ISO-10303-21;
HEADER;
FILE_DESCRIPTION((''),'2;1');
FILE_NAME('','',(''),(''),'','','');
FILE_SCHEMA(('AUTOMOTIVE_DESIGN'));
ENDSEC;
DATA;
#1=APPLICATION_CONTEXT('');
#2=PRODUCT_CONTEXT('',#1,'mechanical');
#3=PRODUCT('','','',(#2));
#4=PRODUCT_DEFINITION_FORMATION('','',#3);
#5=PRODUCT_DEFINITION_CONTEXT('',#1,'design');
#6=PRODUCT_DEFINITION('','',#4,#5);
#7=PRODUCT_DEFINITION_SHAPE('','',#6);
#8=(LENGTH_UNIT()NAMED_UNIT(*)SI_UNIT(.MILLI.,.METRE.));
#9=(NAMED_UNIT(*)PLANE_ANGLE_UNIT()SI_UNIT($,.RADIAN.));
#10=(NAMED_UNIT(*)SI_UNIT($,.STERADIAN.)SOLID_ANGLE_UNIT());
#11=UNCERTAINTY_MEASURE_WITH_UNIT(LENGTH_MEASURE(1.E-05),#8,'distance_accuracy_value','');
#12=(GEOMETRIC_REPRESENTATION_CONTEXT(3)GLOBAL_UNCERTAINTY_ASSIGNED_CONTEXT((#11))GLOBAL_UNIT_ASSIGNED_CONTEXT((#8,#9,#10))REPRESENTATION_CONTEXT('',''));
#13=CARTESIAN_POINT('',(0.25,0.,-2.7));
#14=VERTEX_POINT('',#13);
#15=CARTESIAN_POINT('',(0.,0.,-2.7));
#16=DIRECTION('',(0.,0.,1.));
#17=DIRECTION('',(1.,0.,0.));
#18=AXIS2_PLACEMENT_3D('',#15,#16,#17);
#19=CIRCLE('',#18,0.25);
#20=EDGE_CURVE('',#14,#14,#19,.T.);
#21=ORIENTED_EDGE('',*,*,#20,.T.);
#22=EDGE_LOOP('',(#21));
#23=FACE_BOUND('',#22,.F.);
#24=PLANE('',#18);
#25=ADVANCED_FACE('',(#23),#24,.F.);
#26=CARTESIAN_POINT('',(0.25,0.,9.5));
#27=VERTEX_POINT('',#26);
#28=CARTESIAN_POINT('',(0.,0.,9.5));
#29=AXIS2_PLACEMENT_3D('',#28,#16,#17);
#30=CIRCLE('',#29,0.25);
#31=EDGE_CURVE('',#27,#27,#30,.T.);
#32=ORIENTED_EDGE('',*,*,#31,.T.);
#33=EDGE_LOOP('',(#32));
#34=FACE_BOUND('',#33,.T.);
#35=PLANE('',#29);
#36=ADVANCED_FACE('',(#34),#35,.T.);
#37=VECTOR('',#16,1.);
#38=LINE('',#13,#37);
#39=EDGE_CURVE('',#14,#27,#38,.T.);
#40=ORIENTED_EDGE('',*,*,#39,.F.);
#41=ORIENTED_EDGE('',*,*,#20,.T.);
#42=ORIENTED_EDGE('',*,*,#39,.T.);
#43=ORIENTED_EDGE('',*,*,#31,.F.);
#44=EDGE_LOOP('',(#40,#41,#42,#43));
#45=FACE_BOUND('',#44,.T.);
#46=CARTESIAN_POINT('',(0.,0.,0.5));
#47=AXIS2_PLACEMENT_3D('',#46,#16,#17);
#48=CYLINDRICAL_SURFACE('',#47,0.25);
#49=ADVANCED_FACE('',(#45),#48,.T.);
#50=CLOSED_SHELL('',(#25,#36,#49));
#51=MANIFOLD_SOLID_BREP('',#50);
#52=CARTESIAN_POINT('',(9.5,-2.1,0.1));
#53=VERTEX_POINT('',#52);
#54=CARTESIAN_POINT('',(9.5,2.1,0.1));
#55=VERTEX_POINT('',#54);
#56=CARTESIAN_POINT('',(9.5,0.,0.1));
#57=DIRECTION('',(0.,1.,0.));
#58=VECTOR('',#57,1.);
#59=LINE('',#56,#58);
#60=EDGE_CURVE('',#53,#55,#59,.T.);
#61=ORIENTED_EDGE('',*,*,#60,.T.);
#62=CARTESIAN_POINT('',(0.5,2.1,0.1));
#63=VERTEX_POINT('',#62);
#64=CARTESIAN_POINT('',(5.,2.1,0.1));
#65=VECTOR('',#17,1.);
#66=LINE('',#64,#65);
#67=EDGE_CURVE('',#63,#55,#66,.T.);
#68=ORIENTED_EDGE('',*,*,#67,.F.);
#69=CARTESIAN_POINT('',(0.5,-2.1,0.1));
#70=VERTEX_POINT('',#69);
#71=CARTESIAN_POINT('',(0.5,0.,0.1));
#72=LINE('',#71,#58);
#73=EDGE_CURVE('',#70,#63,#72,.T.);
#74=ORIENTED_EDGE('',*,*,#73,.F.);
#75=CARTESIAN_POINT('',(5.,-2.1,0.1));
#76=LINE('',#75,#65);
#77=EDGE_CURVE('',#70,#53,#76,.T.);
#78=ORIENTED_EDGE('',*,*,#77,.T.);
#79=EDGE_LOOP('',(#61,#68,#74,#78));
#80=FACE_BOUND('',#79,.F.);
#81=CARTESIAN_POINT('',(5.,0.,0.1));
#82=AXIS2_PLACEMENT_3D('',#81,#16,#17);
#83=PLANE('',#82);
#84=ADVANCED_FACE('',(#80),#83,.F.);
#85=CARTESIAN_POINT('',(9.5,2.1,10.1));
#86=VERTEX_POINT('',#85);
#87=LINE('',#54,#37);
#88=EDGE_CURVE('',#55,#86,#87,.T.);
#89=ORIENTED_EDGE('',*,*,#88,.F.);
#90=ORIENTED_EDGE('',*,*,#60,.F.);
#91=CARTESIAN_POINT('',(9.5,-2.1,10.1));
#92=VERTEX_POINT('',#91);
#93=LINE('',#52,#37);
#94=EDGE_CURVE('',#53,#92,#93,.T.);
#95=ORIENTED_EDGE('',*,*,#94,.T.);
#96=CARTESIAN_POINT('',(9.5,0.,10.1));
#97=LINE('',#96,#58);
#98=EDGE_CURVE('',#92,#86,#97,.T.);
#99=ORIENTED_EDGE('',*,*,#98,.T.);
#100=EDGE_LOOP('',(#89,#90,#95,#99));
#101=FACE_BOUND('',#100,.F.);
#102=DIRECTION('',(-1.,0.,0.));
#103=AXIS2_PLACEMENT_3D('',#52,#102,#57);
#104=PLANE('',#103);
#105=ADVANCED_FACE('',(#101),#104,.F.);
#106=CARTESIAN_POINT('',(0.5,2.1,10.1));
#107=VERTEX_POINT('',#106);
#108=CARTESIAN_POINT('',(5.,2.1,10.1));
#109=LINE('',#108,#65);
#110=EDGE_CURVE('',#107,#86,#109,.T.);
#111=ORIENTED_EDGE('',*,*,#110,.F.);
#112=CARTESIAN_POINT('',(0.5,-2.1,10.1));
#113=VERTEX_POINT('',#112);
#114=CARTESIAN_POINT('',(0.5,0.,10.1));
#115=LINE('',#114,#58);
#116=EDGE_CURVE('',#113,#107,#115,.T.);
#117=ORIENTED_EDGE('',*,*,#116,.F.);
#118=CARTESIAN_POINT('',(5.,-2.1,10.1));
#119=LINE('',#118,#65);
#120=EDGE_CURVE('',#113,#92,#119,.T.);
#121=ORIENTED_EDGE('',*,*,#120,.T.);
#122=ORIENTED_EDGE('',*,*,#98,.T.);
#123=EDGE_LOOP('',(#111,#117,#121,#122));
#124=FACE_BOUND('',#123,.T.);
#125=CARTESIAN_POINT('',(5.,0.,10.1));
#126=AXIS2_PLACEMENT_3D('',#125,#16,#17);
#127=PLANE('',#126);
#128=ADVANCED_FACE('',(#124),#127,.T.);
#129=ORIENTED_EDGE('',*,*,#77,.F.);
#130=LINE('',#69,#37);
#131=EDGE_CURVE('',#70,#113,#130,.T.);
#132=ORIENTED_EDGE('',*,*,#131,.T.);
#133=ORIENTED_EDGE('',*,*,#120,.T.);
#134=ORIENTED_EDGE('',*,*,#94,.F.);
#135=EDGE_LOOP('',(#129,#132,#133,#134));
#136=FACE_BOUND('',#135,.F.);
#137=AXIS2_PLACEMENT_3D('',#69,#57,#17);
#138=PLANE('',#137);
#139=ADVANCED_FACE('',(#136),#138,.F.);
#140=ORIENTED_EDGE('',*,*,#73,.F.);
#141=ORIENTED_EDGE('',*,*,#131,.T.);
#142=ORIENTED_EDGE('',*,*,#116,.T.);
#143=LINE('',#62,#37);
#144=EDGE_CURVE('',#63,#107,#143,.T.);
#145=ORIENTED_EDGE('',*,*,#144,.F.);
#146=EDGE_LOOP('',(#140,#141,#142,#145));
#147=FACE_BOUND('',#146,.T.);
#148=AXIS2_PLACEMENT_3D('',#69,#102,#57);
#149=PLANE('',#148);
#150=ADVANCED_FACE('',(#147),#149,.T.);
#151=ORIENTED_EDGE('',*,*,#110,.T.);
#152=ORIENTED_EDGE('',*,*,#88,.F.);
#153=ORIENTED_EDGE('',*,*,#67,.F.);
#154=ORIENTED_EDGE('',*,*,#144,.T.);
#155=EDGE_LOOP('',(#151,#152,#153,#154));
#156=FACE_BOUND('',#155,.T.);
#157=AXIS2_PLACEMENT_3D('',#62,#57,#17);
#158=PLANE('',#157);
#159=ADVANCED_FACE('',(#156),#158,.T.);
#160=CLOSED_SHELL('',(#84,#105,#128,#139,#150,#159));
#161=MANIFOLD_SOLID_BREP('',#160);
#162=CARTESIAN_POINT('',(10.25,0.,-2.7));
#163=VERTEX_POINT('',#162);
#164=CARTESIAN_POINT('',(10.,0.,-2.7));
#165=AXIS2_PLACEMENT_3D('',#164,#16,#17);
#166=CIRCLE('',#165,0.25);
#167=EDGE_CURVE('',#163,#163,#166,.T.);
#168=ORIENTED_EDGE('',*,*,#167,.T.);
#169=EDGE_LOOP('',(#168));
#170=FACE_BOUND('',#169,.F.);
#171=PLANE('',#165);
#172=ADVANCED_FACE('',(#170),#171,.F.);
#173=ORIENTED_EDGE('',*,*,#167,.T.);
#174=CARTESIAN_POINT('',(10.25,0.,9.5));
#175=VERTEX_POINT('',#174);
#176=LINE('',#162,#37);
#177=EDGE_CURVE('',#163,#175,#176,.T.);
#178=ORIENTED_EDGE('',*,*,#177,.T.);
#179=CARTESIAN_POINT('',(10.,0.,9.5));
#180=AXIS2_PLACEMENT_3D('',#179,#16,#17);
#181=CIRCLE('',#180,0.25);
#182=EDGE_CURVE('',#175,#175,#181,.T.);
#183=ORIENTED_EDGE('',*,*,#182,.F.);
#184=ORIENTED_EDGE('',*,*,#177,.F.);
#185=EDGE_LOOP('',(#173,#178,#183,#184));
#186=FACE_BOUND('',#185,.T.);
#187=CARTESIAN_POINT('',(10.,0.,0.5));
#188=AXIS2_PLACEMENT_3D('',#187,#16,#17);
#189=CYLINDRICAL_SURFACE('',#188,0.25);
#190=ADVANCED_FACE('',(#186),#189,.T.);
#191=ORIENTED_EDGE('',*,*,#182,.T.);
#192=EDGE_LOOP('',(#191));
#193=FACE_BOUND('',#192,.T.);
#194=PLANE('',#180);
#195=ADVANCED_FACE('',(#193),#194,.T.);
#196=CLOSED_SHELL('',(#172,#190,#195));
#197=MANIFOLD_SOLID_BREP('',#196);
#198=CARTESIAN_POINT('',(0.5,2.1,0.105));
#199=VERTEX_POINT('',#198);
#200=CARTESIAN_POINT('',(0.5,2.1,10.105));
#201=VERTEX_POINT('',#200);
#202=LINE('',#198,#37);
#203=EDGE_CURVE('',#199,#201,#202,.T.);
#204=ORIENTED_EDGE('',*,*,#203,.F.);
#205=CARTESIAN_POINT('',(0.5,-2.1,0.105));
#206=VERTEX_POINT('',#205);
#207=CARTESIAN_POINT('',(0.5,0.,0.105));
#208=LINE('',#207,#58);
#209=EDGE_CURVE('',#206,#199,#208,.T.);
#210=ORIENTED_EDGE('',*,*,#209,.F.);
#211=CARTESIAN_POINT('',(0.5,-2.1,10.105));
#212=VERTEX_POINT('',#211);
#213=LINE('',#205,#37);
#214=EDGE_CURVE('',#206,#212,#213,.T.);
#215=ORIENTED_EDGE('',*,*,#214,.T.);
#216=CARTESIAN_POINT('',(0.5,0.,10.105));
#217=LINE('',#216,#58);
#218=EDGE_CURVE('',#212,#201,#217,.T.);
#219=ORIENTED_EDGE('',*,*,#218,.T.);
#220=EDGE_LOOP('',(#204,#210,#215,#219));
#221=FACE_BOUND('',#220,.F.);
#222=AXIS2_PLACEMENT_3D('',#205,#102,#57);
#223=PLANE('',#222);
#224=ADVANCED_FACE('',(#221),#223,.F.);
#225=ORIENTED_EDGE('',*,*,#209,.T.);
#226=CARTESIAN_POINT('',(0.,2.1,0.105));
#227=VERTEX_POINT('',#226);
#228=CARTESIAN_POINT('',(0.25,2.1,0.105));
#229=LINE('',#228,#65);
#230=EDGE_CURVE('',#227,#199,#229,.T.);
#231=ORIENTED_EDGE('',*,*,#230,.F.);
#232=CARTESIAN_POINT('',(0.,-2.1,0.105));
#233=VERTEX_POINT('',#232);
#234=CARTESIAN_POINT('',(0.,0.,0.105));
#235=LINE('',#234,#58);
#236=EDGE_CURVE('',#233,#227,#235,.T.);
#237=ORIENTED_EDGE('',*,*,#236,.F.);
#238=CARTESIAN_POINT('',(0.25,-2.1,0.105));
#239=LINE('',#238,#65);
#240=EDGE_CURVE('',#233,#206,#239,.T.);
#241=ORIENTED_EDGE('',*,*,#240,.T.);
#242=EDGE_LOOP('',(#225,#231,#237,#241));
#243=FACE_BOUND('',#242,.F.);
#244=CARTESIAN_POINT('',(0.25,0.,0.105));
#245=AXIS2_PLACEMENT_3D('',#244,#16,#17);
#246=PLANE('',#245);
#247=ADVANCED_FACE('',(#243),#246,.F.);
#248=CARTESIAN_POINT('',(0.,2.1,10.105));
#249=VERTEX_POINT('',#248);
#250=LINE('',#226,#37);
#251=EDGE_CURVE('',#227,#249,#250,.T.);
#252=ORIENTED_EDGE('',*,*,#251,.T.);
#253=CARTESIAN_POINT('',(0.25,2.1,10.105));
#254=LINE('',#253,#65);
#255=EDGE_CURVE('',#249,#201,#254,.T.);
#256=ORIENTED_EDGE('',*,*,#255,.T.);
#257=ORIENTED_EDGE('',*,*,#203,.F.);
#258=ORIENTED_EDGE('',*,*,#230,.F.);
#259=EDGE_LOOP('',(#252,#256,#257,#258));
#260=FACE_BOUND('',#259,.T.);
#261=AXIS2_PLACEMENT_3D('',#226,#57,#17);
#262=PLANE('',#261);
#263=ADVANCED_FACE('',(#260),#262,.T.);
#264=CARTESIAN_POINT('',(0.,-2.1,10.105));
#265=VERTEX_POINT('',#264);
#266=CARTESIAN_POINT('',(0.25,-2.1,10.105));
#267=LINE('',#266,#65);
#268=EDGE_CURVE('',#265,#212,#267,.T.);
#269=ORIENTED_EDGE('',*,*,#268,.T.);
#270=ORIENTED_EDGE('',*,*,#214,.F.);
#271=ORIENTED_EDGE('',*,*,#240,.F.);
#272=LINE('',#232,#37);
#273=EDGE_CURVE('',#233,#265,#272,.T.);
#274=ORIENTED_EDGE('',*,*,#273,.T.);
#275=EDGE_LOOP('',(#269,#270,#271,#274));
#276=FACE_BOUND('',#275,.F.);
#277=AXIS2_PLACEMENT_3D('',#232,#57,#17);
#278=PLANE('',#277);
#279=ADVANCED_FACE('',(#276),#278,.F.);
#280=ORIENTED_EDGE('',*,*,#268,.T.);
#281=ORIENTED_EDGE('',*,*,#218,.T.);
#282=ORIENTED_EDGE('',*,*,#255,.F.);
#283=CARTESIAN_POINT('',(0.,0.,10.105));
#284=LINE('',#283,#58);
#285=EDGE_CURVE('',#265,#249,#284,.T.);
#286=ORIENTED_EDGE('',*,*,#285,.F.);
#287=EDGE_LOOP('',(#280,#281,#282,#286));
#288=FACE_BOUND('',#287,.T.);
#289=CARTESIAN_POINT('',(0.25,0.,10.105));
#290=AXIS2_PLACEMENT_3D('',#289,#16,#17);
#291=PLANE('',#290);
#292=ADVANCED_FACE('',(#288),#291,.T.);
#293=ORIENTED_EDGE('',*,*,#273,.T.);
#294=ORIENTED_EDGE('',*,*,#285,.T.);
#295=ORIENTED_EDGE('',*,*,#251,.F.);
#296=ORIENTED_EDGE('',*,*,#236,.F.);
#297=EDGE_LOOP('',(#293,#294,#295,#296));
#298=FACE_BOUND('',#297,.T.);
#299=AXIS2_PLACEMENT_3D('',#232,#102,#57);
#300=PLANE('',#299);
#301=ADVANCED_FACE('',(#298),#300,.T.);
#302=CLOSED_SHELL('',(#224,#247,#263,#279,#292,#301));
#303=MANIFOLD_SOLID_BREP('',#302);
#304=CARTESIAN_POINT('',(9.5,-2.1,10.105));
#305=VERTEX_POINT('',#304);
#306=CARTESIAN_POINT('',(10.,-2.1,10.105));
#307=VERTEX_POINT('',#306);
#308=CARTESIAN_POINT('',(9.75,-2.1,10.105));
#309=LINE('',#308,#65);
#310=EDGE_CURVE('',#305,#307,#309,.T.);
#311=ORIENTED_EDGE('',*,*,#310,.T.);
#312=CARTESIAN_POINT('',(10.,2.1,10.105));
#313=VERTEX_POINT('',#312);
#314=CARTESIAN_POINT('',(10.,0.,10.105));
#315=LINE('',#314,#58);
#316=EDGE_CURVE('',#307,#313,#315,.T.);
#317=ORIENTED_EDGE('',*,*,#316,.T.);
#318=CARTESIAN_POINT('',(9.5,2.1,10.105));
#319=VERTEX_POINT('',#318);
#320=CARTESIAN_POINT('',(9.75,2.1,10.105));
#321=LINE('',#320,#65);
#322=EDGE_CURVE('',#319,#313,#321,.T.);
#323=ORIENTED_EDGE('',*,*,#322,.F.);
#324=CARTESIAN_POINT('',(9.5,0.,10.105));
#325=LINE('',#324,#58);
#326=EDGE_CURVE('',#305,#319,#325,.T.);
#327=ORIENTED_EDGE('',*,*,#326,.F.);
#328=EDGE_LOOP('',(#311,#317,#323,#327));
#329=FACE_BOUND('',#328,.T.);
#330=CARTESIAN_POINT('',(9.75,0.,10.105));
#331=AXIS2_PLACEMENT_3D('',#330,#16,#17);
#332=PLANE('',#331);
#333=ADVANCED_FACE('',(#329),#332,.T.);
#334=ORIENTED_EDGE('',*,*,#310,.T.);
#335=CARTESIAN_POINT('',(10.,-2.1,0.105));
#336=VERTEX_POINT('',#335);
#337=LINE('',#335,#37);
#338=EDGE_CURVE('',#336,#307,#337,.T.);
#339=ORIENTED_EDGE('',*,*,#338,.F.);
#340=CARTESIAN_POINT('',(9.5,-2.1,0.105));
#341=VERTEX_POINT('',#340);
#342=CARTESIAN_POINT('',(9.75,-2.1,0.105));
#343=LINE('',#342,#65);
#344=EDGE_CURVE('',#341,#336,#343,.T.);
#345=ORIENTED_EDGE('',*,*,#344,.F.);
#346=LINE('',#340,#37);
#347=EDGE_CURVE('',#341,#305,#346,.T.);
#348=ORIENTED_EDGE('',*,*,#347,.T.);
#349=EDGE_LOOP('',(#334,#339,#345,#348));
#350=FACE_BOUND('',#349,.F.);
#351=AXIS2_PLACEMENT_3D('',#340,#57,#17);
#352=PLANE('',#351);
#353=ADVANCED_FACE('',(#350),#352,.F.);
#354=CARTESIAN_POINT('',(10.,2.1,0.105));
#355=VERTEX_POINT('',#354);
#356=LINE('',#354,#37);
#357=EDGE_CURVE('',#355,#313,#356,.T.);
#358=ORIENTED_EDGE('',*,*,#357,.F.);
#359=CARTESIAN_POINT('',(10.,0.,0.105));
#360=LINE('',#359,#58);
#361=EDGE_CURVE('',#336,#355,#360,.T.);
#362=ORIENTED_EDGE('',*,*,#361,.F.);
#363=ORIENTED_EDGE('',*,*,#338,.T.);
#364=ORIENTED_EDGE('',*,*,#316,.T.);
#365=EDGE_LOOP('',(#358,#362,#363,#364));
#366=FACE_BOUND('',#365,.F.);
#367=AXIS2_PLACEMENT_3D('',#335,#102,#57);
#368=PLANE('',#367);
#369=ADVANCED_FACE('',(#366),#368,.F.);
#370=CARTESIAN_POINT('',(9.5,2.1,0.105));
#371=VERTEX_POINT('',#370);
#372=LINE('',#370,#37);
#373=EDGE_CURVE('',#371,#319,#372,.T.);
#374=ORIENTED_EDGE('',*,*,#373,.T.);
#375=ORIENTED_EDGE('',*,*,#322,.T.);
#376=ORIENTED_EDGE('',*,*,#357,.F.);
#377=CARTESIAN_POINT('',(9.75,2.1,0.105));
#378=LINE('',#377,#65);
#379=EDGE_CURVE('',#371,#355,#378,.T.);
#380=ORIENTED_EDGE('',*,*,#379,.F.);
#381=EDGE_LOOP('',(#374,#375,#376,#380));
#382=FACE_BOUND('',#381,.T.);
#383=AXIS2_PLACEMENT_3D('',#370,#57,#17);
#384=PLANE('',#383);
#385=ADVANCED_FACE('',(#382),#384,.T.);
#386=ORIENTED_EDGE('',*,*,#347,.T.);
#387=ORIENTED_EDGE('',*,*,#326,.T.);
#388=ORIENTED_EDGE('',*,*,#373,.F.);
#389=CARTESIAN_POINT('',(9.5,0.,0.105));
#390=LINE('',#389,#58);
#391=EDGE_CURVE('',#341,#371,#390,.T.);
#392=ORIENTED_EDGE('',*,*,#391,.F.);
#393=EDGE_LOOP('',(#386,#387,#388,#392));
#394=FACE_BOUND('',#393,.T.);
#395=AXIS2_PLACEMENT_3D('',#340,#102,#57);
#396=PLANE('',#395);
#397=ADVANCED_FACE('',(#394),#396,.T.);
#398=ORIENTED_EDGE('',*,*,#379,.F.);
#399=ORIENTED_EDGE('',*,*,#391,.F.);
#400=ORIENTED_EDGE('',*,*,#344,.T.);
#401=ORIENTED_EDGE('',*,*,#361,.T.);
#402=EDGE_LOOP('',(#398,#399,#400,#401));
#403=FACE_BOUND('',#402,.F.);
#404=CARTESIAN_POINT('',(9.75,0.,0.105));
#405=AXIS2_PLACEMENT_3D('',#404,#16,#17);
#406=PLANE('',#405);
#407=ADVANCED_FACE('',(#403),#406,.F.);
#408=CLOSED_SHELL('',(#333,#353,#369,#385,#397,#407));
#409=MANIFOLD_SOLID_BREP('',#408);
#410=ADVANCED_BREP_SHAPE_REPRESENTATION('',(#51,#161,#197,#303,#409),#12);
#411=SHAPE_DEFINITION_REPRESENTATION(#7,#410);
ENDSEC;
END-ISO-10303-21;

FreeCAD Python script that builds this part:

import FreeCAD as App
import Part
import Sketcher
Q = App.Units.Quantity


def add_polygon(sketch, points):
    """Adds a closed chain of lines whose ends are joined by coincident constraints."""
    first, n = sketch.GeometryCount, len(points)
    for a, b in zip(points, points[1:] + points[:1]):
        sketch.addGeometry(Part.LineSegment(App.Vector(*a, 0), App.Vector(*b, 0)), False)
    for i in range(n):
        sketch.addConstraint(Sketcher.Constraint("Coincident", first + i, 2, first + (i + 1) % n, 1))

doc = App.newDocument("Part")
body = doc.addObject("PartDesign::Body", "Body")

# Sketch on XY plane
sketch1 = body.newObject("Sketcher::SketchObject", "Sketch")
sketch1.AttachmentSupport = (doc.getObject("XY_Plane"), [""])
sketch1.MapMode = "FlatFace"
sketch1.AttachmentOffset = App.Placement(App.Vector(0, 0, 0.1), App.Rotation())
add_polygon(sketch1, [(0.5, 2.1), (0.5, -2.1), (9.5, -2.1), (9.5, 2.1)])  # lines 0-3
sketch1.addConstraint([
    Sketcher.Constraint("Vertical", 0),
    Sketcher.Constraint("Horizontal", 1),
    Sketcher.Constraint("Vertical", 2),
    Sketcher.Constraint("Horizontal", 3),
    Sketcher.Constraint("DistanceX", 1, 1, 1, 2, Q("9 mm")),
    Sketcher.Constraint("DistanceY", 0, 2, 0, 1, Q("4.2 mm")),
    Sketcher.Constraint("DistanceX", -1, 1, 0, 2, Q("0.5 mm")),
    Sketcher.Constraint("DistanceY", 0, 2, -1, 1, Q("2.1 mm")),
])
pad1 = body.newObject("PartDesign::Pad", "Pad")
pad1.Profile = sketch1
pad1.Length = 10
body2 = doc.addObject("PartDesign::Body", "Body001")
body2.AllowCompound = True

# Sketch on XY plane
sketch2 = body2.newObject("Sketcher::SketchObject", "Sketch001")
sketch2.AttachmentSupport = (doc.getObject("XY_Plane001"), [""])
sketch2.MapMode = "FlatFace"
sketch2.AttachmentOffset = App.Placement(App.Vector(0, 0, 0.5), App.Rotation())
sketch2.addGeometry([
    Part.Circle(App.Vector(0, 0, 0), App.Vector(0, 0, 1), 0.25),
    Part.Circle(App.Vector(10, 0, 0), App.Vector(0, 0, 1), 0.25),
], False)
sketch2.addConstraint([
    Sketcher.Constraint("Coincident", 0, 3, -1, 1),
    Sketcher.Constraint("Equal", 0, 1),
    Sketcher.Constraint("PointOnObject", 1, 3, -1),
    Sketcher.Constraint("Diameter", 0, Q("0.5 mm")),
    Sketcher.Constraint("DistanceX", -1, 1, 1, 3, Q("10 mm")),
])
pad2 = body2.newObject("PartDesign::Pad", "Pad001")
pad2.Profile = sketch2
pad2.Type = "TwoLengths"
pad2.Length = 9
pad2.Length2 = 3.2
body3 = doc.addObject("PartDesign::Body", "Body002")
body3.AllowCompound = True

# Sketch on XY plane
sketch3 = body3.newObject("Sketcher::SketchObject", "Sketch002")
sketch3.AttachmentSupport = (doc.getObject("XY_Plane002"), [""])
sketch3.MapMode = "FlatFace"
sketch3.AttachmentOffset = App.Placement(App.Vector(0, 0, 0.105), App.Rotation())
add_polygon(sketch3, [(0, 2.1), (0, -2.1), (0.5, -2.1), (0.5, 2.1)])  # lines 0-3
add_polygon(sketch3, [(9.5, 2.1), (9.5, -2.1), (10, -2.1), (10, 2.1)])  # lines 4-7
sketch3.addConstraint([
    Sketcher.Constraint("Vertical", 0),
    Sketcher.Constraint("Horizontal", 1),
    Sketcher.Constraint("Vertical", 2),
    Sketcher.Constraint("Horizontal", 3),
    Sketcher.Constraint("Vertical", 4),
    Sketcher.Constraint("Horizontal", 5),
    Sketcher.Constraint("Vertical", 6),
    Sketcher.Constraint("Horizontal", 7),
    Sketcher.Constraint("Symmetric", 0, 2, 3, 2, -1, 1),
    Sketcher.Constraint("Horizontal", 1, 2, 4, 2),
    Sketcher.Constraint("Horizontal", 3, 2, 6, 2),
    Sketcher.Constraint("Equal", 3, 5),
    Sketcher.Constraint("DistanceX", 1, 1, 1, 2, Q("0.5 mm")),
    Sketcher.Constraint("DistanceY", 0, 2, 0, 1, Q("4.2 mm")),
    Sketcher.Constraint("DistanceX", -1, 1, 5, 2, Q("10 mm")),
])
pad3 = body3.newObject("PartDesign::Pad", "Pad002")
pad3.Profile = sketch3
pad3.Length = 10

doc.recompute()
